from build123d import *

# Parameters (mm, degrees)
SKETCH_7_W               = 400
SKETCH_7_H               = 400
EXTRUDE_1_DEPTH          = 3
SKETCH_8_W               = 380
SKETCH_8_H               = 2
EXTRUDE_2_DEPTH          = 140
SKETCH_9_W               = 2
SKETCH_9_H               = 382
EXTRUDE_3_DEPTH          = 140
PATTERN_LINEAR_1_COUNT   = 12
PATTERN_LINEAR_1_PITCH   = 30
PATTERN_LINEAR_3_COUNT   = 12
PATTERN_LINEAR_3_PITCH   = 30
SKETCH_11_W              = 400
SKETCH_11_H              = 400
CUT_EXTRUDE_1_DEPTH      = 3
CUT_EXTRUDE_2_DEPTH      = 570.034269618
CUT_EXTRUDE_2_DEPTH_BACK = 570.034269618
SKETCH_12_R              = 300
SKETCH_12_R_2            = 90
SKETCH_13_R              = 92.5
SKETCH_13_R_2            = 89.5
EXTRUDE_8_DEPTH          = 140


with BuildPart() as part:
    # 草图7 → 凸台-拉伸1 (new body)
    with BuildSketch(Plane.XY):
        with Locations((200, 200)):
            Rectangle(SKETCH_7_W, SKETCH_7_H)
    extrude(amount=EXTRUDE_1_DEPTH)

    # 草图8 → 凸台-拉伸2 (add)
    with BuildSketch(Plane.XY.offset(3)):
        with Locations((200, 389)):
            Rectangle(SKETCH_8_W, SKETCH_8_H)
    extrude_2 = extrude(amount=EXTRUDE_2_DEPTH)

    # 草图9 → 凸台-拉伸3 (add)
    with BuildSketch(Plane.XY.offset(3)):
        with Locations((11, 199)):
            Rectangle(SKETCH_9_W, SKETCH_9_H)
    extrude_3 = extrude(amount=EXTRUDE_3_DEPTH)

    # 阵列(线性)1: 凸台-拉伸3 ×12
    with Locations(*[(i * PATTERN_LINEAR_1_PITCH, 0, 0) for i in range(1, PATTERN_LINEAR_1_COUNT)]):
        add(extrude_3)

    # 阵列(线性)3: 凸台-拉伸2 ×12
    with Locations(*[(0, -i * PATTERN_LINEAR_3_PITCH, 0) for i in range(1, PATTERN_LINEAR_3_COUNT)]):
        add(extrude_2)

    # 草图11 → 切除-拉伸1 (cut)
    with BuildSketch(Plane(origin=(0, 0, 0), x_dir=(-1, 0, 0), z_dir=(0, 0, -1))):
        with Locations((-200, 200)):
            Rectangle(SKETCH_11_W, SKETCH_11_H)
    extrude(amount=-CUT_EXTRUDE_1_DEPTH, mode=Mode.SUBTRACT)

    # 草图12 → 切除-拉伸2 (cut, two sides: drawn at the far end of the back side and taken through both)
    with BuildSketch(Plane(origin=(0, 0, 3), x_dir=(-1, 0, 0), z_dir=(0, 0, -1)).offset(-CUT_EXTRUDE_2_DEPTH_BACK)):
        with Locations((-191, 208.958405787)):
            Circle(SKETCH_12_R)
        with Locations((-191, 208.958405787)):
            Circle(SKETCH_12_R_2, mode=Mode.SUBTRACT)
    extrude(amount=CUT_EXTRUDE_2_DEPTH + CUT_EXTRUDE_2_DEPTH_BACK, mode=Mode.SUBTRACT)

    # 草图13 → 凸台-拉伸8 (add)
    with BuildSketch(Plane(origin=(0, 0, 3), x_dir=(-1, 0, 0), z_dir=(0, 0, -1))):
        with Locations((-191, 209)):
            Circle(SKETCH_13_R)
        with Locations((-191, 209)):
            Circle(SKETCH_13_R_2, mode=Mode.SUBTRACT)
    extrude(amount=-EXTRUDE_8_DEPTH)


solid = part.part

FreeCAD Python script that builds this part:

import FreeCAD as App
import Part
import Sketcher

doc = App.newDocument("Part")
body = doc.addObject("PartDesign::Body", "Body")

sketch1 = body.newObject("Sketcher::SketchObject", "Sketch")
sketch1.AttachmentSupport = (doc.getObject("XY_Plane"), [""])
sketch1.MapMode = "FlatFace"
sketch1.addGeometry(Part.LineSegment(App.Vector(0, 400, 0), App.Vector(0, 0, 0)), False)
sketch1.addGeometry(Part.LineSegment(App.Vector(0, 0, 0), App.Vector(400, 0, 0)), False)
sketch1.addGeometry(Part.LineSegment(App.Vector(400, 0, 0), App.Vector(400, 400, 0)), False)
sketch1.addGeometry(Part.LineSegment(App.Vector(400, 400, 0), App.Vector(0, 400, 0)), False)
sketch1.addConstraint(Sketcher.Constraint("Coincident", 0, 2, 1, 1))
sketch1.addConstraint(Sketcher.Constraint("Coincident", 1, 2, 2, 1))
sketch1.addConstraint(Sketcher.Constraint("Coincident", 2, 2, 3, 1))
sketch1.addConstraint(Sketcher.Constraint("Coincident", 3, 2, 0, 1))
sketch1.addConstraint(Sketcher.Constraint("Vertical", 0))
sketch1.addConstraint(Sketcher.Constraint("Horizontal", 1))
sketch1.addConstraint(Sketcher.Constraint("Vertical", 2))
sketch1.addConstraint(Sketcher.Constraint("Horizontal", 3))
sketch1.addConstraint(Sketcher.Constraint("Coincident", 0, 2, -1, 1))
sketch1.addConstraint(Sketcher.Constraint("Equal", 3, 0))
sketch1.addConstraint(Sketcher.Constraint("DistanceX", 1, 1, 1, 2, 400.0))
pad1 = body.newObject("PartDesign::Pad", "Pad")
pad1.Profile = sketch1
pad1.Length = 3

sketch2 = body.newObject("Sketcher::SketchObject", "Sketch001")
sketch2.AttachmentSupport = (doc.getObject("XY_Plane"), [""])
sketch2.MapMode = "FlatFace"
sketch2.AttachmentOffset = App.Placement(App.Vector(0, 0, 3), App.Rotation())
sketch2.addGeometry(Part.LineSegment(App.Vector(10, 390, 0), App.Vector(10, 388, 0)), False)
sketch2.addGeometry(Part.LineSegment(App.Vector(10, 388, 0), App.Vector(390, 388, 0)), False)
sketch2.addGeometry(Part.LineSegment(App.Vector(390, 388, 0), App.Vector(390, 390, 0)), False)
sketch2.addGeometry(Part.LineSegment(App.Vector(390, 390, 0), App.Vector(10, 390, 0)), False)
sketch2.addConstraint(Sketcher.Constraint("Coincident", 0, 2, 1, 1))
sketch2.addConstraint(Sketcher.Constraint("Coincident", 1, 2, 2, 1))
sketch2.addConstraint(Sketcher.Constraint("Coincident", 2, 2, 3, 1))
sketch2.addConstraint(Sketcher.Constraint("Coincident", 3, 2, 0, 1))
sketch2.addConstraint(Sketcher.Constraint("Vertical", 0))
sketch2.addConstraint(Sketcher.Constraint("Horizontal", 1))
sketch2.addConstraint(Sketcher.Constraint("Vertical", 2))
sketch2.addConstraint(Sketcher.Constraint("Horizontal", 3))
sketch2.addConstraint(Sketcher.Constraint("DistanceX", 1, 1, 1, 2, 380.0))
sketch2.addConstraint(Sketcher.Constraint("DistanceY", 0, 2, 0, 1, 2.0))
sketch2.addConstraint(Sketcher.Constraint("DistanceX", -1, 1, 0, 2, 10.0))
sketch2.addConstraint(Sketcher.Constraint("DistanceY", -1, 1, 0, 2, 388.0))
pad2 = body.newObject("PartDesign::Pad", "Pad001")
pad2.Profile = sketch2
pad2.Length = 140

sketch3 = body.newObject("Sketcher::SketchObject", "Sketch002")
sketch3.AttachmentSupport = (doc.getObject("XY_Plane"), [""])
sketch3.MapMode = "FlatFace"
sketch3.AttachmentOffset = App.Placement(App.Vector(0, 0, 3), App.Rotation())
sketch3.addGeometry(Part.LineSegment(App.Vector(10, 390, 0), App.Vector(10, 8, 0)), False)
sketch3.addGeometry(Part.LineSegment(App.Vector(10, 8, 0), App.Vector(12, 8, 0)), False)
sketch3.addGeometry(Part.LineSegment(App.Vector(12, 8, 0), App.Vector(12, 390, 0)), False)
sketch3.addGeometry(Part.LineSegment(App.Vector(12, 390, 0), App.Vector(10, 390, 0)), False)
sketch3.addConstraint(Sketcher.Constraint("Coincident", 0, 2, 1, 1))
sketch3.addConstraint(Sketcher.Constraint("Coincident", 1, 2, 2, 1))
sketch3.addConstraint(Sketcher.Constraint("Coincident", 2, 2, 3, 1))
sketch3.addConstraint(Sketcher.Constraint("Coincident", 3, 2, 0, 1))
sketch3.addConstraint(Sketcher.Constraint("Vertical", 0))
sketch3.addConstraint(Sketcher.Constraint("Horizontal", 1))
sketch3.addConstraint(Sketcher.Constraint("Vertical", 2))
sketch3.addConstraint(Sketcher.Constraint("Horizontal", 3))
sketch3.addConstraint(Sketcher.Constraint("DistanceX", 1, 1, 1, 2, 2.0))
sketch3.addConstraint(Sketcher.Constraint("DistanceY", 0, 2, 0, 1, 382.0))
sketch3.addConstraint(Sketcher.Constraint("DistanceX", -1, 1, 0, 2, 10.0))
sketch3.addConstraint(Sketcher.Constraint("DistanceY", -1, 1, 0, 2, 8.0))
pad3 = body.newObject("PartDesign::Pad", "Pad002")
pad3.Profile = sketch3
pad3.Length = 140
doc.recompute()

linearpattern = body.newObject("PartDesign::LinearPattern", "LinearPattern")
linearpattern.Originals = [pad3]
linearpattern.Direction = (doc.getObject("X_Axis"), [""])
linearpattern.Mode = "offset"
linearpattern.Offset = 30
linearpattern.Occurrences = 12
body.Tip = linearpattern
doc.recompute()

linearpattern2 = body.newObject("PartDesign::LinearPattern", "LinearPattern001")
linearpattern2.Originals = [pad2]
linearpattern2.Direction = (doc.getObject("Y_Axis"), [""])
linearpattern2.Mode = "offset"
linearpattern2.Offset = 30
linearpattern2.Occurrences = 12
linearpattern2.Reversed = True
body.Tip = linearpattern2

sketch4 = body.newObject("Sketcher::SketchObject", "Sketch003")
sketch4.AttachmentSupport = (doc.getObject("XY_Plane"), [""])
sketch4.MapMode = "FlatFace"
sketch4.addGeometry(Part.LineSegment(App.Vector(400, 400, 0), App.Vector(400, 0, 0)), False)
sketch4.addGeometry(Part.LineSegment(App.Vector(400, 0, 0), App.Vector(0, 0, 0)), False)
sketch4.addGeometry(Part.LineSegment(App.Vector(0, 0, 0), App.Vector(0, 400, 0)), False)
sketch4.addGeometry(Part.LineSegment(App.Vector(0, 400, 0), App.Vector(400, 400, 0)), False)
sketch4.addConstraint(Sketcher.Constraint("Coincident", 0, 2, 1, 1))
sketch4.addConstraint(Sketcher.Constraint("Coincident", 1, 2, 2, 1))
sketch4.addConstraint(Sketcher.Constraint("Coincident", 2, 2, 3, 1))
sketch4.addConstraint(Sketcher.Constraint("Coincident", 3, 2, 0, 1))
sketch4.addConstraint(Sketcher.Constraint("Vertical", 0))
sketch4.addConstraint(Sketcher.Constraint("Horizontal", 1))
sketch4.addConstraint(Sketcher.Constraint("Vertical", 2))
sketch4.addConstraint(Sketcher.Constraint("Horizontal", 3))
sketch4.addConstraint(Sketcher.Constraint("Coincident", 1, 2, -1, 1))
sketch4.addConstraint(Sketcher.Constraint("Equal", 3, 0))
sketch4.addConstraint(Sketcher.Constraint("DistanceX", 1, 2, 1, 1, 400.0))
pocket1 = body.newObject("PartDesign::Pocket", "Pocket")
pocket1.Profile = sketch4
pocket1.Length = 3
pocket1.Reversed = True

sketch5 = body.newObject("Sketcher::SketchObject", "Sketch004")
sketch5.AttachmentSupport = (doc.getObject("XY_Plane"), [""])
sketch5.MapMode = "FlatFace"
sketch5.AttachmentOffset = App.Placement(App.Vector(0, 0, 3), App.Rotation())
sketch5.addGeometry(Part.Circle(App.Vector(191, 209, 0), App.Vector(0, 0, 1), 300), False)
sketch5.addGeometry(Part.Circle(App.Vector(191, 209, 0), App.Vector(0, 0, 1), 90), False)
sketch5.addConstraint(Sketcher.Constraint("Coincident", 1, 3, 0, 3))
sketch5.addConstraint(Sketcher.Constraint("Diameter", 0, 600.0))
sketch5.addConstraint(Sketcher.Constraint("Diameter", 1, 180.0))
sketch5.addConstraint(Sketcher.Constraint("DistanceX", -1, 1, 0, 3, 191.0))
sketch5.addConstraint(Sketcher.Constraint("DistanceY", -1, 1, 0, 3, 208.958406))
pocket2 = body.newObject("PartDesign::Pocket", "Pocket001")
pocket2.Profile = sketch5
pocket2.Type = "ThroughAll"
pocket2.Midplane = True

sketch6 = body.newObject("Sketcher::SketchObject", "Sketch005")
sketch6.AttachmentSupport = (doc.getObject("XY_Plane"), [""])
sketch6.MapMode = "FlatFace"
sketch6.AttachmentOffset = App.Placement(App.Vector(0, 0, 3), App.Rotation())
sketch6.addGeometry(Part.Circle(App.Vector(191, 209, 0), App.Vector(0, 0, 1), 92), False)
sketch6.addGeometry(Part.Circle(App.Vector(191, 209, 0), App.Vector(0, 0, 1), 90), False)
sketch6.addConstraint(Sketcher.Constraint("Coincident", 1, 3, 0, 3))
sketch6.addConstraint(Sketcher.Constraint("Diameter", 0, 185.0))
sketch6.addConstraint(Sketcher.Constraint("Diameter", 1, 179.0))
sketch6.addConstraint(Sketcher.Constraint("DistanceX", -1, 1, 0, 3, 191.0))
sketch6.addConstraint(Sketcher.Constraint("DistanceY", -1, 1, 0, 3, 209.0))
pad4 = body.newObject("PartDesign::Pad", "Pad003")
pad4.Profile = sketch6
pad4.Length = 140

doc.recompute()
